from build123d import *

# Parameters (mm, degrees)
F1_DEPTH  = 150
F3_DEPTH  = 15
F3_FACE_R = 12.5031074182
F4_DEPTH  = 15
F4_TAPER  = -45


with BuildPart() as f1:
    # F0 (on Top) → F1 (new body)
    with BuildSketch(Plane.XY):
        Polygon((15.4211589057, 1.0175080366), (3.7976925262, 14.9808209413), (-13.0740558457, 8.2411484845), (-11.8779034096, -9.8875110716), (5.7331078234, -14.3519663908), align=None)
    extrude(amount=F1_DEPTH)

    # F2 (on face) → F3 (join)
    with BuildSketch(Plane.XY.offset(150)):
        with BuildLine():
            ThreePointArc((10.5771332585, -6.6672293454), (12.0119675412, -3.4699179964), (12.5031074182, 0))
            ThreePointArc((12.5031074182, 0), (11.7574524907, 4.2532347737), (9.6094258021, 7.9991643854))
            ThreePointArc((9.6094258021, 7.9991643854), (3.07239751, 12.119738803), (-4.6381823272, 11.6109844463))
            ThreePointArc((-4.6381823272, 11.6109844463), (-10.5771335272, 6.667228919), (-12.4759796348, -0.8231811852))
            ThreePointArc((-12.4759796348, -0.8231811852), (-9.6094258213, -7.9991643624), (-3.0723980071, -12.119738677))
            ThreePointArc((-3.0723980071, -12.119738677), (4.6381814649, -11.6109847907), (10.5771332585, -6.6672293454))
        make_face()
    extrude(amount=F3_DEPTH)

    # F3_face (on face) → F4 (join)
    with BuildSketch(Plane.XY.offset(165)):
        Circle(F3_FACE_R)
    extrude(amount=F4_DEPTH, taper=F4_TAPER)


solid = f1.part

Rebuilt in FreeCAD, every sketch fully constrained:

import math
import FreeCAD as App
import Part
import Sketcher
from FreeCAD import Vector
Q = App.Units.Quantity

doc = App.newDocument("Part")
params = doc.addObject("Spreadsheet::Sheet", "Params")
for row, (alias, value) in enumerate([
    ("pad1_length", "150 mm"),
    ("pad2_length", "15 mm"),
    ("pad3_length", "15 mm"),
    ("pad3_taper", "45 deg"),
], start=1):
    params.set(f"A{row}", alias)
    params.set(f"B{row}", "=" + value)
    params.setAlias(f"B{row}", alias)

body = doc.addObject("PartDesign::Body", "Body")

# Sketch on XY plane
sketch1 = body.newObject("Sketcher::SketchObject", "Sketch")
sketch1.AttachmentSupport = (doc.getObject("XY_Plane"), [""])
sketch1.MapMode = "FlatFace"
sketch1.addGeometry([
    Part.LineSegment(Vector(15, 1, 0), Vector(4, 15, 0)),  # 0
    Part.LineSegment(Vector(4, 15, 0), Vector(-13, 8, 0)),  # 1
    Part.LineSegment(Vector(-13, 8, 0), Vector(-12, -10, 0)),  # 2
    Part.LineSegment(Vector(-12, -10, 0), Vector(6, -14, 0)),  # 3
    Part.LineSegment(Vector(6, -14, 0), Vector(15, 1, 0)),  # 4
], False)
sketch1.addConstraint([
    Sketcher.Constraint("Coincident", 0, 2, 1, 1),
    Sketcher.Constraint("Coincident", 1, 2, 2, 1),
    Sketcher.Constraint("Coincident", 2, 2, 3, 1),
    Sketcher.Constraint("Coincident", 3, 2, 4, 1),
    Sketcher.Constraint("Coincident", 4, 2, 0, 1),
    Sketcher.Constraint("Equal", 0, 1),
    Sketcher.Constraint("Equal", 1, 2),
    Sketcher.Constraint("Equal", 2, 3),
    Sketcher.Constraint("Equal", 3, 4),
    Sketcher.Constraint("Distance", 0, Q("18.168079 mm")),
    Sketcher.Constraint("DistanceY", -1, 1, 0, 2, Q("14.980821 mm")),
    Sketcher.Constraint("DistanceY", -1, 1, 1, 2, Q("8.241148 mm")),
    Sketcher.Constraint("DistanceY", 2, 2, -1, 1, Q("9.887511 mm")),
    Sketcher.Constraint("DistanceX", -1, 1, 4, 2, Q("15.421159 mm")),
    Sketcher.Constraint("DistanceY", -1, 1, 4, 2, Q("1.017508 mm")),
])
pad1 = body.newObject("PartDesign::Pad", "Pad")
pad1.Profile = sketch1
pad1.setExpression("Length", "Params.pad1_length")

# Sketch on XY plane
sketch2 = body.newObject("Sketcher::SketchObject", "Sketch001")
sketch2.AttachmentSupport = (doc.getObject("XY_Plane"), [""])
sketch2.MapMode = "FlatFace"
sketch2.AttachmentOffset = App.Placement(Vector(0, 0, 150), App.Rotation())
sketch2.addGeometry([
    Part.ArcOfCircle(Part.Circle(Vector(0, 0, 0), Vector(0, 0, 1), 13), math.radians(-32), math.radians(0)),  # 0
    Part.ArcOfCircle(Part.Circle(Vector(0, 0, 0), Vector(0, 0, 1), 13), math.radians(0), math.radians(40)),  # 1
    Part.ArcOfCircle(Part.Circle(Vector(0, 0, 0), Vector(0, 0, 1), 13), math.radians(40), math.radians(112)),  # 2
    Part.ArcOfCircle(Part.Circle(Vector(0, 0, 0), Vector(0, 0, 1), 13), math.radians(112), math.radians(184)),  # 3
    Part.ArcOfCircle(Part.Circle(Vector(0, 0, 0), Vector(0, 0, 1), 13), math.radians(-176), math.radians(-104)),  # 4
    Part.ArcOfCircle(Part.Circle(Vector(0, 0, 0), Vector(0, 0, 1), 13), math.radians(-104), math.radians(-32)),  # 5
], False)
sketch2.addConstraint([
    Sketcher.Constraint("Tangent", 0, 2, 1, 1),
    Sketcher.Constraint("Tangent", 1, 2, 2, 1),
    Sketcher.Constraint("Tangent", 2, 2, 3, 1),
    Sketcher.Constraint("Tangent", 3, 2, 4, 1),
    Sketcher.Constraint("Tangent", 4, 2, 5, 1),
    Sketcher.Constraint("Tangent", 5, 2, 0, 1),
    Sketcher.Constraint("Coincident", 0, 3, -1, 1),
    Sketcher.Constraint("Coincident", 2, 3, -1, 1),
    Sketcher.Constraint("Equal", 2, 3),
    Sketcher.Constraint("PointOnObject", 0, 2, -1),
    Sketcher.Constraint("Radius", 0, Q("12.503107 mm")),
    Sketcher.Constraint("DistanceX", 4, 2, -1, 1, Q("3.072398 mm")),
    Sketcher.Constraint("DistanceX", 3, 2, -1, 1, Q("12.47598 mm")),
    Sketcher.Constraint("DistanceY", 5, 2, -1, 1, Q("6.667229 mm")),
    Sketcher.Constraint("DistanceX", 1, 2, 0, 2, Q("2.893682 mm")),
    Sketcher.Constraint("DistanceX", 2, 2, -1, 1, Q("4.638182 mm")),
])
pad2 = body.newObject("PartDesign::Pad", "Pad001")
pad2.Profile = sketch2
pad2.setExpression("Length", "Params.pad2_length")

# Sketch on XY plane
sketch3 = body.newObject("Sketcher::SketchObject", "Sketch002")
sketch3.AttachmentSupport = (doc.getObject("XY_Plane"), [""])
sketch3.MapMode = "FlatFace"
sketch3.AttachmentOffset = App.Placement(Vector(0, 0, 165), App.Rotation())
sketch3.addGeometry(Part.Circle(Vector(0, 0, 0), Vector(0, 0, 1), 13), False)
sketch3.addConstraint([
    Sketcher.Constraint("Coincident", 0, 3, -1, 1),
    Sketcher.Constraint("Diameter", 0, Q("25.006215 mm")),
])
pad3 = body.newObject("PartDesign::Pad", "Pad002")
pad3.Profile = sketch3
pad3.setExpression("Length", "Params.pad3_length")
pad3.setExpression("TaperAngle", "Params.pad3_taper")

doc.recompute()
